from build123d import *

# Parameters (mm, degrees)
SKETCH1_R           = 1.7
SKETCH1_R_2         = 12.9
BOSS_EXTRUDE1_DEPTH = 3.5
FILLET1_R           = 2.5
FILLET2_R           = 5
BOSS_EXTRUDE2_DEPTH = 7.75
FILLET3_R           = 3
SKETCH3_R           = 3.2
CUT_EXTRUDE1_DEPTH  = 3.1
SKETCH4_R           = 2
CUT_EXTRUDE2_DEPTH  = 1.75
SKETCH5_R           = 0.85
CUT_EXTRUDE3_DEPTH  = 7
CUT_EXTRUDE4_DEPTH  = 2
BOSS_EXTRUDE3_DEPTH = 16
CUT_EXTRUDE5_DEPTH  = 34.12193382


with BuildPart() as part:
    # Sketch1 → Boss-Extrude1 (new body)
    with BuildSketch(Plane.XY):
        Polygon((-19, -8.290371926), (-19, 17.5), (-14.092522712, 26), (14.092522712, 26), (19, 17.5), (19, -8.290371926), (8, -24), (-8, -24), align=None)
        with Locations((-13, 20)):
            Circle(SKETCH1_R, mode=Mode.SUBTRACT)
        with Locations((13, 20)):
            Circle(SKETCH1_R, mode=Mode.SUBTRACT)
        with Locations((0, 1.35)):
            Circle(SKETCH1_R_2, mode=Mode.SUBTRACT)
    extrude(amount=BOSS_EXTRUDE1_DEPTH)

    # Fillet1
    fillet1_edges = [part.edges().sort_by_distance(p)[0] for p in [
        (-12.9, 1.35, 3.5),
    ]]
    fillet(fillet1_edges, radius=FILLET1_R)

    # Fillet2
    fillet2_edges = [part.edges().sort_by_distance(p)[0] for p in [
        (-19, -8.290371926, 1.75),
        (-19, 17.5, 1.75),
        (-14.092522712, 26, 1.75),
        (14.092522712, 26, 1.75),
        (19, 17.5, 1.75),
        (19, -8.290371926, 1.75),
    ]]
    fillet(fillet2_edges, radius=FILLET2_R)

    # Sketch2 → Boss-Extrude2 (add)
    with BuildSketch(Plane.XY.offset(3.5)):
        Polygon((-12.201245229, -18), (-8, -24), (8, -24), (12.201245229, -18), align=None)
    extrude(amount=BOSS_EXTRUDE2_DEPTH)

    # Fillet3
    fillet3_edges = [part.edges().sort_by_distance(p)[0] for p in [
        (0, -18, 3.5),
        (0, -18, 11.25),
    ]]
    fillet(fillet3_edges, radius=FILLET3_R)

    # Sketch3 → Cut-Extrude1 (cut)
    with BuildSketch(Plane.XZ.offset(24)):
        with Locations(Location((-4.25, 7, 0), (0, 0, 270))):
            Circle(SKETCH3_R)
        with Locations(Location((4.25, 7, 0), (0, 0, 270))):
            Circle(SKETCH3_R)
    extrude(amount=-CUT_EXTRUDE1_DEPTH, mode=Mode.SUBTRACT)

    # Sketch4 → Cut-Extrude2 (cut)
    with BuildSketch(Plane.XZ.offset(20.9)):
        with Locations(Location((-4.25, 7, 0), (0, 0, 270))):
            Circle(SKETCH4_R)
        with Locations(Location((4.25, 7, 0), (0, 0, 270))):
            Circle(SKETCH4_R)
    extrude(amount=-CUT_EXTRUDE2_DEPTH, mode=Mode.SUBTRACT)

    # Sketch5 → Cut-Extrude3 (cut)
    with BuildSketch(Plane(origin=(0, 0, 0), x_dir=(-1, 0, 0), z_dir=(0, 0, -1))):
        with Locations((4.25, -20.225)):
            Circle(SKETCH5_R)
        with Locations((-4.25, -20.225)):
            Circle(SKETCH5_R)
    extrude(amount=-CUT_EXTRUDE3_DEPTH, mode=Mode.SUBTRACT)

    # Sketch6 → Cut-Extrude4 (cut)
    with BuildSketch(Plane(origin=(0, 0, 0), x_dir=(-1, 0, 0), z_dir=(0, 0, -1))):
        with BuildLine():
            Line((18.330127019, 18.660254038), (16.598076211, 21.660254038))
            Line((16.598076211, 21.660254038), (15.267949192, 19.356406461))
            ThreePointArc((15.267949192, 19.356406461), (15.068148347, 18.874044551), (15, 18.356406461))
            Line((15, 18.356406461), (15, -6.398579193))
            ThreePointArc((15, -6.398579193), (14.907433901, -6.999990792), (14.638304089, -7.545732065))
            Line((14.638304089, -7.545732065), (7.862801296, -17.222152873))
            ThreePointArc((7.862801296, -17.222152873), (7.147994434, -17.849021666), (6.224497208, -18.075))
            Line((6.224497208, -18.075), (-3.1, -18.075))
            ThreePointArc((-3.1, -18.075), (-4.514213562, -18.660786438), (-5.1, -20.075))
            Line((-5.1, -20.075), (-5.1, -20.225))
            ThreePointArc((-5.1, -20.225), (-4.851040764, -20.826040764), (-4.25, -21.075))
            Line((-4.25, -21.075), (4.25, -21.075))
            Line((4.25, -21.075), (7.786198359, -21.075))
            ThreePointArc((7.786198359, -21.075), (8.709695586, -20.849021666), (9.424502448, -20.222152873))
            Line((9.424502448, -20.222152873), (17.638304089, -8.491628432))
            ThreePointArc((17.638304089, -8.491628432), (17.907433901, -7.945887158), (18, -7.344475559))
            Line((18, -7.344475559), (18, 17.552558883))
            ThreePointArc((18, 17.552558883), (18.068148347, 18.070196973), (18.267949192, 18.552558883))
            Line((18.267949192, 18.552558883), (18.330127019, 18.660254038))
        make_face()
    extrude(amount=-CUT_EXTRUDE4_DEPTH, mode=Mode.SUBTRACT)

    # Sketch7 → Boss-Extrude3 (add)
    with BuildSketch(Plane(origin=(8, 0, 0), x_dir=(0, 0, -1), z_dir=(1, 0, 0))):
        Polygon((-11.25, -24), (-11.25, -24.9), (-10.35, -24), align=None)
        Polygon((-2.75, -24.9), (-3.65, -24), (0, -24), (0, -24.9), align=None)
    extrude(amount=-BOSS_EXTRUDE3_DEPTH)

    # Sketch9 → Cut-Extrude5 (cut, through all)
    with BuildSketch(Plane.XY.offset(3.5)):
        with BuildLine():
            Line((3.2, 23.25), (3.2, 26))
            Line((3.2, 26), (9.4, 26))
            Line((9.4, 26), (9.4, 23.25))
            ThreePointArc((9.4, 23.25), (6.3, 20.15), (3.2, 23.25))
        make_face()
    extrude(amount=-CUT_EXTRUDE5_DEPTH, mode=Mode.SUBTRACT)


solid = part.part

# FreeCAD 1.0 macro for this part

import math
import FreeCAD as App
import Part
import Sketcher
from FreeCAD import Vector
Q = App.Units.Quantity


def edges_at(feature, points):
    """Names of the edges that pass closest to the given points."""
    edges = feature.Shape.Edges
    near = lambda p: min(range(len(edges)), key=lambda i: edges[i].distToShape(Part.Vertex(*p))[0])
    return sorted({f"Edge{near(p) + 1}" for p in points})

doc = App.newDocument("Part")
body = doc.addObject("PartDesign::Body", "Body")

# Sketch on XY plane
sketch1 = body.newObject("Sketcher::SketchObject", "Sketch")
sketch1.AttachmentSupport = (doc.getObject("XY_Plane"), [""])
sketch1.MapMode = "FlatFace"
sketch1.addGeometry([
    Part.LineSegment(Vector(-19, 17.5, 0), Vector(-19, -8.3, 0)),  # 0
    Part.LineSegment(Vector(-19, -8.3, 0), Vector(-8, -24, 0)),  # 1
    Part.LineSegment(Vector(-8, -24, 0), Vector(8, -24, 0)),  # 2
    Part.LineSegment(Vector(8, -24, 0), Vector(19, -8.3, 0)),  # 3
    Part.LineSegment(Vector(19, -8.3, 0), Vector(19, 17.5, 0)),  # 4
    Part.LineSegment(Vector(19, 17.5, 0), Vector(14.1, 26, 0)),  # 5
    Part.LineSegment(Vector(14.1, 26, 0), Vector(-14.1, 26, 0)),  # 6
    Part.LineSegment(Vector(-14.1, 26, 0), Vector(-19, 17.5, 0)),  # 7
    Part.Circle(Vector(0, 1.4, 0), Vector(0, 0, 1), 12.9),  # 8
    Part.Circle(Vector(13, 20, 0), Vector(0, 0, 1), 1.7),  # 9
    Part.Circle(Vector(-13, 20, 0), Vector(0, 0, 1), 1.7),  # 10
], False)
sketch1.addConstraint([
    Sketcher.Constraint("Coincident", 0, 2, 1, 1),
    Sketcher.Constraint("Coincident", 1, 2, 2, 1),
    Sketcher.Constraint("Coincident", 2, 2, 3, 1),
    Sketcher.Constraint("Coincident", 3, 2, 4, 1),
    Sketcher.Constraint("Coincident", 4, 2, 5, 1),
    Sketcher.Constraint("Coincident", 5, 2, 6, 1),
    Sketcher.Constraint("Coincident", 6, 2, 7, 1),
    Sketcher.Constraint("Coincident", 7, 2, 0, 1),
    Sketcher.Constraint("Vertical", 0),
    Sketcher.Constraint("Horizontal", 2),
    Sketcher.Constraint("Vertical", 4),
    Sketcher.Constraint("Horizontal", 6),
    Sketcher.Constraint("Equal", 9, 10),
    Sketcher.Constraint("Symmetric", 9, 3, 10, 3, -2),
    Sketcher.Constraint("Symmetric", 0, 2, 3, 2, -2),
    Sketcher.Constraint("PointOnObject", 8, 3, -2),
    Sketcher.Constraint("Horizontal", 4, 2, 7, 2),
    Sketcher.Constraint("Equal", 1, 3),
    Sketcher.Constraint("Equal", 5, 7),
    Sketcher.Constraint("Diameter", 8, Q("25.8 mm")),
    Sketcher.Constraint("Diameter", 9, Q("3.4 mm")),
    Sketcher.Constraint("DistanceX", 2, 1, 2, 2, Q("16 mm")),
    Sketcher.Constraint("Angle", 1, Q("-55 deg")),
    Sketcher.Constraint("Angle", 5, Q("120 deg")),
    Sketcher.Constraint("DistanceX", -1, 1, 9, 3, Q("13 mm")),
    Sketcher.Constraint("DistanceY", -1, 1, 9, 3, Q("20 mm")),
    Sketcher.Constraint("DistanceX", 0, 2, -1, 1, Q("19 mm")),
    Sketcher.Constraint("DistanceY", 1, 2, -1, 1, Q("24 mm")),
    Sketcher.Constraint("DistanceY", -1, 1, 5, 2, Q("26 mm")),
    Sketcher.Constraint("DistanceY", -1, 1, 4, 2, Q("17.5 mm")),
    Sketcher.Constraint("DistanceY", -1, 1, 8, 3, Q("1.35 mm")),
])
pad1 = body.newObject("PartDesign::Pad", "Pad")
pad1.Profile = sketch1
pad1.Length = 3.5
doc.recompute()

fillet = body.newObject("PartDesign::Fillet", "Fillet")
fillet.Base = (pad1, edges_at(pad1, [(-12.9, 1.35, 3.5)]))
fillet.Radius = 2.5
doc.recompute()

fillet2 = body.newObject("PartDesign::Fillet", "Fillet001")
fillet2.Base = (fillet, edges_at(fillet, [
    (-19, -8.29, 1.75),
    (-19, 17.5, 1.75),
    (-14.093, 26, 1.75),
    (14.093, 26, 1.75),
    (19, 17.5, 1.75),
    (19, -8.29, 1.75),
]))
fillet2.Radius = 5

# Sketch on XY plane
sketch2 = body.newObject("Sketcher::SketchObject", "Sketch001")
sketch2.AttachmentSupport = (doc.getObject("XY_Plane"), [""])
sketch2.MapMode = "FlatFace"
sketch2.AttachmentOffset = App.Placement(Vector(0, 0, 3.5), App.Rotation())
sketch2.addGeometry([
    Part.LineSegment(Vector(-12, -18, 0), Vector(-8, -24, 0)),
    Part.LineSegment(Vector(-8, -24, 0), Vector(8, -24, 0)),
    Part.LineSegment(Vector(8, -24, 0), Vector(12, -18, 0)),
    Part.LineSegment(Vector(12, -18, 0), Vector(-12, -18, 0)),
], False)
sketch2.addConstraint([
    Sketcher.Constraint("Coincident", 0, 2, 1, 1),
    Sketcher.Constraint("Coincident", 1, 2, 2, 1),
    Sketcher.Constraint("Coincident", 2, 2, 3, 1),
    Sketcher.Constraint("Coincident", 3, 2, 0, 1),
    Sketcher.Constraint("Horizontal", 1),
    Sketcher.Constraint("Horizontal", 3),
    Sketcher.Constraint("Equal", 0, 2),
    Sketcher.Constraint("DistanceX", 1, 1, 1, 2, Q("16 mm")),
    Sketcher.Constraint("Angle", 0, Q("-55 deg")),
    Sketcher.Constraint("DistanceX", 0, 2, -1, 1, Q("8 mm")),
    Sketcher.Constraint("DistanceY", 0, 2, -1, 1, Q("24 mm")),
    Sketcher.Constraint("DistanceY", 2, 2, -1, 1, Q("18 mm")),
])
pad2 = body.newObject("PartDesign::Pad", "Pad001")
pad2.Profile = sketch2
pad2.Length = 7.75
doc.recompute()

fillet3 = body.newObject("PartDesign::Fillet", "Fillet002")
fillet3.Base = (pad2, edges_at(pad2, [(0, -18, 3.5), (0, -18, 11.25)]))
fillet3.Radius = 3

# Sketch on XZ plane
sketch3 = body.newObject("Sketcher::SketchObject", "Sketch002")
sketch3.AttachmentSupport = (doc.getObject("XZ_Plane"), [""])
sketch3.MapMode = "FlatFace"
sketch3.AttachmentOffset = App.Placement(Vector(0, 0, 24), App.Rotation())
sketch3.addGeometry([
    Part.Circle(Vector(-4.2, 7, 0), Vector(0, 0, 1), 3.2),
    Part.Circle(Vector(4.2, 7, 0), Vector(0, 0, 1), 3.2),
], False)
sketch3.addConstraint([
    Sketcher.Constraint("Equal", 0, 1),
    Sketcher.Constraint("Symmetric", 0, 3, 1, 3, -2),
    Sketcher.Constraint("Diameter", 0, Q("6.4 mm")),
    Sketcher.Constraint("DistanceY", -1, 1, 0, 3, Q("7 mm")),
    Sketcher.Constraint("DistanceX", 0, 3, 1, 3, Q("8.5 mm")),
])
pocket1 = body.newObject("PartDesign::Pocket", "Pocket")
pocket1.Profile = sketch3
pocket1.Length = 3.1

# Sketch on XZ plane
sketch4 = body.newObject("Sketcher::SketchObject", "Sketch003")
sketch4.AttachmentSupport = (doc.getObject("XZ_Plane"), [""])
sketch4.MapMode = "FlatFace"
sketch4.AttachmentOffset = App.Placement(Vector(0, 0, 20.9), App.Rotation())
sketch4.addGeometry([
    Part.Circle(Vector(-4.2, 7, 0), Vector(0, 0, 1), 2),
    Part.Circle(Vector(4.2, 7, 0), Vector(0, 0, 1), 2),
], False)
sketch4.addConstraint([
    Sketcher.Constraint("Equal", 0, 1),
    Sketcher.Constraint("Symmetric", 0, 3, 1, 3, -2),
    Sketcher.Constraint("Diameter", 0, Q("4 mm")),
    Sketcher.Constraint("DistanceY", -1, 1, 0, 3, Q("7 mm")),
    Sketcher.Constraint("DistanceX", 0, 3, 1, 3, Q("8.5 mm")),
])
pocket2 = body.newObject("PartDesign::Pocket", "Pocket001")
pocket2.Profile = sketch4
pocket2.Length = 1.75

# Sketch on XY plane
sketch5 = body.newObject("Sketcher::SketchObject", "Sketch004")
sketch5.AttachmentSupport = (doc.getObject("XY_Plane"), [""])
sketch5.MapMode = "FlatFace"
sketch5.addGeometry([
    Part.Circle(Vector(-4.2, -20.2, 0), Vector(0, 0, 1), 0.8),
    Part.Circle(Vector(4.2, -20.2, 0), Vector(0, 0, 1), 0.8),
], False)
sketch5.addConstraint([
    Sketcher.Constraint("Equal", 0, 1),
    Sketcher.Constraint("Symmetric", 0, 3, 1, 3, -2),
    Sketcher.Constraint("Diameter", 0, Q("1.7 mm")),
    Sketcher.Constraint("DistanceX", 0, 3, 1, 3, Q("8.5 mm")),
    Sketcher.Constraint("DistanceY", 0, 3, -1, 1, Q("20.225 mm")),
])
pocket3 = body.newObject("PartDesign::Pocket", "Pocket002")
pocket3.Profile = sketch5
pocket3.Length = 7
pocket3.Reversed = True

# Sketch on XY plane
sketch6 = body.newObject("Sketcher::SketchObject", "Sketch005")
sketch6.AttachmentSupport = (doc.getObject("XY_Plane"), [""])
sketch6.MapMode = "FlatFace"
sketch6.addGeometry([
    Part.LineSegment(Vector(-18.33, 18.66, 0), Vector(-16.6, 21.66, 0)),  # 0
    Part.LineSegment(Vector(-16.6, 21.66, 0), Vector(-15.27, 19.36, 0)),  # 1
    Part.ArcOfCircle(Part.Circle(Vector(-17, 18.36, 0), Vector(0, 0, 1), 2), math.radians(0), math.radians(30)),  # 2
    Part.LineSegment(Vector(-15, 18.36, 0), Vector(-15, -6.4, 0)),  # 3
    Part.ArcOfCircle(Part.Circle(Vector(-13, -6.4, 0), Vector(0, 0, 1), 2), math.radians(-180), math.radians(-145)),  # 4
    Part.LineSegment(Vector(-14.64, -7.55, 0), Vector(-7.86, -17.22, 0)),  # 5
    Part.ArcOfCircle(Part.Circle(Vector(-6.22, -16.07, 0), Vector(0, 0, 1), 2), math.radians(-145), math.radians(-90)),  # 6
    Part.LineSegment(Vector(-6.22, -18.07, 0), Vector(3.1, -18.07, 0)),  # 7
    Part.ArcOfCircle(Part.Circle(Vector(3.1, -20.08, 0), Vector(0, 0, 1), 2), math.radians(0), math.radians(90)),  # 8
    Part.LineSegment(Vector(5.1, -20.07, 0), Vector(5.1, -20.23, 0)),  # 9
    Part.ArcOfCircle(Part.Circle(Vector(4.25, -20.23, 0), Vector(0, 0, 1), 0.85), math.radians(-90), math.radians(0)),  # 10
    Part.LineSegment(Vector(4.25, -21.07, 0), Vector(-7.79, -21.07, 0)),  # 11
    Part.ArcOfCircle(Part.Circle(Vector(-7.79, -19.07, 0), Vector(0, 0, 1), 2), math.radians(-145), math.radians(-90)),  # 12
    Part.LineSegment(Vector(-9.42, -20.22, 0), Vector(-17.64, -8.49, 0)),  # 13
    Part.ArcOfCircle(Part.Circle(Vector(-16, -7.34, 0), Vector(0, 0, 1), 2), math.radians(-180), math.radians(-145)),  # 14
    Part.LineSegment(Vector(-18, -7.34, 0), Vector(-18, 17.55, 0)),  # 15
    Part.ArcOfCircle(Part.Circle(Vector(-20, 17.55, 0), Vector(0, 0, 1), 2), math.radians(0), math.radians(30)),  # 16
    Part.LineSegment(Vector(-18.27, 18.55, 0), Vector(-18.33, 18.66, 0)),  # 17
], False)
sketch6.addConstraint([
    Sketcher.Constraint("Coincident", 0, 2, 1, 1),
    Sketcher.Constraint("Tangent", 1, 2, 2, 2),
    Sketcher.Constraint("Tangent", 2, 1, 3, 1),
    Sketcher.Constraint("Tangent", 3, 2, 4, 1),
    Sketcher.Constraint("Tangent", 4, 2, 5, 1),
    Sketcher.Constraint("Tangent", 5, 2, 6, 1),
    Sketcher.Constraint("Tangent", 6, 2, 7, 1),
    Sketcher.Constraint("Tangent", 7, 2, 8, 2),
    Sketcher.Constraint("Tangent", 8, 1, 9, 1),
    Sketcher.Constraint("Tangent", 9, 2, 10, 2),
    Sketcher.Constraint("Tangent", 10, 1, 11, 1),
    Sketcher.Constraint("Tangent", 11, 2, 12, 2),
    Sketcher.Constraint("Tangent", 12, 1, 13, 1),
    Sketcher.Constraint("Tangent", 13, 2, 14, 2),
    Sketcher.Constraint("Tangent", 14, 1, 15, 1),
    Sketcher.Constraint("Tangent", 15, 2, 16, 1),
    Sketcher.Constraint("Tangent", 16, 2, 17, 1),
    Sketcher.Constraint("Coincident", 17, 2, 0, 1),
    Sketcher.Constraint("Vertical", 3),
    Sketcher.Constraint("Horizontal", 7),
    Sketcher.Constraint("Vertical", 9),
    Sketcher.Constraint("Horizontal", 11),
    Sketcher.Constraint("Vertical", 15),
    Sketcher.Constraint("Equal", 2, 4),
    Sketcher.Constraint("Equal", 4, 6),
    Sketcher.Constraint("Equal", 6, 8),
    Sketcher.Constraint("Equal", 8, 12),
    Sketcher.Constraint("Equal", 12, 14),
    Sketcher.Constraint("Equal", 14, 16),
    Sketcher.Constraint("Parallel", 5, 13),
    Sketcher.Constraint("Parallel", 1, 17),
    Sketcher.Constraint("Radius", 2, Q("2 mm")),
    Sketcher.Constraint("Angle", 0, Q("60 deg")),
    Sketcher.Constraint("Angle", 1, Q("-60 deg")),
    Sketcher.Constraint("Angle", 5, Q("-55 deg")),
    Sketcher.Constraint("Radius", 10, Q("0.85 mm")),
    Sketcher.Constraint("DistanceX", 2, 3, -1, 1, Q("17 mm")),
    Sketcher.Constraint("DistanceX", 14, 3, -1, 1, Q("16 mm")),
    Sketcher.Constraint("DistanceY", 12, 3, 6, 3, Q("3 mm")),
    Sketcher.Constraint("DistanceX", -1, 1, 8, 3, Q("3.1 mm")),
    Sketcher.Constraint("DistanceX", 11, 2, 11, 1, Q("12.036198 mm")),
    Sketcher.Constraint("DistanceY", 6, 3, -1, 1, Q("16.075 mm")),
    Sketcher.Constraint("Distance", 0, Q("3.464102 mm")),
    Sketcher.Constraint("DistanceX", 5, 2, -1, 1, Q("7.862801 mm")),
    Sketcher.Constraint("DistanceY", 3, 2, 3, 1, Q("24.754986 mm")),
    Sketcher.Constraint("DistanceY", 14, 3, 0, 2, Q("29.00473 mm")),
])
pocket4 = body.newObject("PartDesign::Pocket", "Pocket003")
pocket4.Profile = sketch6
pocket4.Length = 2
pocket4.Reversed = True

# Sketch on YZ plane
sketch7 = body.newObject("Sketcher::SketchObject", "Sketch006")
sketch7.AttachmentSupport = (doc.getObject("YZ_Plane"), [""])
sketch7.MapMode = "FlatFace"
sketch7.AttachmentOffset = App.Placement(Vector(0, 0, 8), App.Rotation())
sketch7.addGeometry([
    Part.LineSegment(Vector(-24, 11.2, 0), Vector(-24.9, 11.2, 0)),  # 0
    Part.LineSegment(Vector(-24.9, 11.2, 0), Vector(-24, 10.3, 0)),  # 1
    Part.LineSegment(Vector(-24, 10.3, 0), Vector(-24, 11.2, 0)),  # 2
    Part.LineSegment(Vector(-24, 3.6, 0), Vector(-24.9, 2.8, 0)),  # 3
    Part.LineSegment(Vector(-24.9, 2.8, 0), Vector(-24.9, 0, 0)),  # 4
    Part.LineSegment(Vector(-24.9, 0, 0), Vector(-24, 0, 0)),  # 5
    Part.LineSegment(Vector(-24, 0, 0), Vector(-24, 3.6, 0)),  # 6
], False)
sketch7.addConstraint([
    Sketcher.Constraint("Coincident", 0, 2, 1, 1),
    Sketcher.Constraint("Coincident", 1, 2, 2, 1),
    Sketcher.Constraint("Coincident", 2, 2, 0, 1),
    Sketcher.Constraint("Coincident", 3, 2, 4, 1),
    Sketcher.Constraint("Coincident", 4, 2, 5, 1),
    Sketcher.Constraint("Coincident", 5, 2, 6, 1),
    Sketcher.Constraint("Coincident", 6, 2, 3, 1),
    Sketcher.Constraint("Horizontal", 0),
    Sketcher.Constraint("Vertical", 2),
    Sketcher.Constraint("Vertical", 4),
    Sketcher.Constraint("Horizontal", 5),
    Sketcher.Constraint("Vertical", 6),
    Sketcher.Constraint("PointOnObject", 4, 2, -1),
    Sketcher.Constraint("Perpendicular", 1, 3),
    Sketcher.Constraint("Vertical", 0, 2, 3, 2),
    Sketcher.Constraint("Vertical", 2, 2, 5, 2),
    Sketcher.Constraint("Equal", 5, 2),
    Sketcher.Constraint("DistanceX", 0, 2, 0, 1, Q("0.9 mm")),
    Sketcher.Constraint("DistanceX", 1, 2, -1, 1, Q("24 mm")),
    Sketcher.Constraint("DistanceY", 4, 2, 4, 1, Q("2.75 mm")),
    Sketcher.Constraint("DistanceY", 3, 2, 1, 2, Q("7.6 mm")),
])
pad3 = body.newObject("PartDesign::Pad", "Pad002")
pad3.Profile = sketch7
pad3.Length = 16
pad3.Reversed = True

# Sketch on XY plane
sketch8 = body.newObject("Sketcher::SketchObject", "Sketch007")
sketch8.AttachmentSupport = (doc.getObject("XY_Plane"), [""])
sketch8.MapMode = "FlatFace"
sketch8.AttachmentOffset = App.Placement(Vector(0, 0, 3.5), App.Rotation())
sketch8.addGeometry([
    Part.LineSegment(Vector(3.2, 26, 0), Vector(3.2, 23.2, 0)),
    Part.ArcOfCircle(Part.Circle(Vector(6.3, 23.2, 0), Vector(0, 0, 1), 3.1), math.radians(180), math.radians(360)),
    Part.LineSegment(Vector(9.4, 23.2, 0), Vector(9.4, 26, 0)),
    Part.LineSegment(Vector(9.4, 26, 0), Vector(3.2, 26, 0)),
], False)
sketch8.addConstraint([
    Sketcher.Constraint("Tangent", 0, 2, 1, 1),
    Sketcher.Constraint("Tangent", 1, 2, 2, 1),
    Sketcher.Constraint("Coincident", 2, 2, 3, 1),
    Sketcher.Constraint("Coincident", 3, 2, 0, 1),
    Sketcher.Constraint("Vertical", 0),
    Sketcher.Constraint("Vertical", 2),
    Sketcher.Constraint("Horizontal", 3),
    Sketcher.Constraint("Radius", 1, Q("3.1 mm")),
    Sketcher.Constraint("DistanceY", -1, 1, 2, 2, Q("26 mm")),
    Sketcher.Constraint("DistanceY", 0, 2, 0, 1, Q("2.75 mm")),
    Sketcher.Constraint("DistanceX", -1, 1, 1, 3, Q("6.3 mm")),
])
pocket5 = body.newObject("PartDesign::Pocket", "Pocket004")
pocket5.Profile = sketch8
pocket5.Type = "ThroughAll"

doc.recompute()
